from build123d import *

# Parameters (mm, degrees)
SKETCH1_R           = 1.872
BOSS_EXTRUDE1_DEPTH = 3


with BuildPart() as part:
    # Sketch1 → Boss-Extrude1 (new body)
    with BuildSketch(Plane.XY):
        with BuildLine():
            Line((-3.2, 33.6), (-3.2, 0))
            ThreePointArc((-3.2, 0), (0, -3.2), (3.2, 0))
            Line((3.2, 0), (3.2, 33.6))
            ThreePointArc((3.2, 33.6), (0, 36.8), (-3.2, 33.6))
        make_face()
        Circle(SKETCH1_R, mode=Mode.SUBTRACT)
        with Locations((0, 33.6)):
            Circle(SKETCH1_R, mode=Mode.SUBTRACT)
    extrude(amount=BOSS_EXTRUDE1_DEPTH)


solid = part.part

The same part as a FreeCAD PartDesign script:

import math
import FreeCAD as App
import Part
import Sketcher
from FreeCAD import Vector
Q = App.Units.Quantity

doc = App.newDocument("Part")
body = doc.addObject("PartDesign::Body", "Body")

# Sketch on XY plane
sketch1 = body.newObject("Sketcher::SketchObject", "Sketch")
sketch1.AttachmentSupport = (doc.getObject("XY_Plane"), [""])
sketch1.MapMode = "FlatFace"
sketch1.addGeometry(Part.LineSegment(Vector(-3.2, 33.6, 0), Vector(-3.2, 0, 0)), False)
sketch1.addGeometry(Part.ArcOfCircle(Part.Circle(Vector(0, 0, 0), Vector(0, 0, 1), 3.2), math.radians(180), math.radians(360)), False)
sketch1.addGeometry(Part.LineSegment(Vector(3.2, 0, 0), Vector(3.2, 33.6, 0)), False)
sketch1.addGeometry(Part.ArcOfCircle(Part.Circle(Vector(0, 33.6, 0), Vector(0, 0, 1), 3.2), math.radians(0), math.radians(180)), False)
sketch1.addGeometry(Part.Circle(Vector(0, 0, 0), Vector(0, 0, 1), 1.9), False)
sketch1.addGeometry(Part.Circle(Vector(0, 33.6, 0), Vector(0, 0, 1), 1.9), False)
sketch1.addConstraint(Sketcher.Constraint("Tangent", 0, 2, 1, 1))
sketch1.addConstraint(Sketcher.Constraint("Tangent", 1, 2, 2, 1))
sketch1.addConstraint(Sketcher.Constraint("Tangent", 2, 2, 3, 1))
sketch1.addConstraint(Sketcher.Constraint("Tangent", 3, 2, 0, 1))
sketch1.addConstraint(Sketcher.Constraint("Vertical", 0))
sketch1.addConstraint(Sketcher.Constraint("Vertical", 2))
sketch1.addConstraint(Sketcher.Constraint("Coincident", 1, 3, -1, 1))
sketch1.addConstraint(Sketcher.Constraint("Coincident", 4, 3, -1, 1))
sketch1.addConstraint(Sketcher.Constraint("Coincident", 5, 3, 3, 3))
sketch1.addConstraint(Sketcher.Constraint("Equal", 4, 5))
sketch1.addConstraint(Sketcher.Constraint("Radius", 1, Q("3.2 mm")))
sketch1.addConstraint(Sketcher.Constraint("Diameter", 4, Q("3.744 mm")))
sketch1.addConstraint(Sketcher.Constraint("DistanceY", 0, 2, 0, 1, Q("33.6 mm")))
pad1 = body.newObject("PartDesign::Pad", "Pad")
pad1.Profile = sketch1
pad1.Length = 3

doc.recompute()
